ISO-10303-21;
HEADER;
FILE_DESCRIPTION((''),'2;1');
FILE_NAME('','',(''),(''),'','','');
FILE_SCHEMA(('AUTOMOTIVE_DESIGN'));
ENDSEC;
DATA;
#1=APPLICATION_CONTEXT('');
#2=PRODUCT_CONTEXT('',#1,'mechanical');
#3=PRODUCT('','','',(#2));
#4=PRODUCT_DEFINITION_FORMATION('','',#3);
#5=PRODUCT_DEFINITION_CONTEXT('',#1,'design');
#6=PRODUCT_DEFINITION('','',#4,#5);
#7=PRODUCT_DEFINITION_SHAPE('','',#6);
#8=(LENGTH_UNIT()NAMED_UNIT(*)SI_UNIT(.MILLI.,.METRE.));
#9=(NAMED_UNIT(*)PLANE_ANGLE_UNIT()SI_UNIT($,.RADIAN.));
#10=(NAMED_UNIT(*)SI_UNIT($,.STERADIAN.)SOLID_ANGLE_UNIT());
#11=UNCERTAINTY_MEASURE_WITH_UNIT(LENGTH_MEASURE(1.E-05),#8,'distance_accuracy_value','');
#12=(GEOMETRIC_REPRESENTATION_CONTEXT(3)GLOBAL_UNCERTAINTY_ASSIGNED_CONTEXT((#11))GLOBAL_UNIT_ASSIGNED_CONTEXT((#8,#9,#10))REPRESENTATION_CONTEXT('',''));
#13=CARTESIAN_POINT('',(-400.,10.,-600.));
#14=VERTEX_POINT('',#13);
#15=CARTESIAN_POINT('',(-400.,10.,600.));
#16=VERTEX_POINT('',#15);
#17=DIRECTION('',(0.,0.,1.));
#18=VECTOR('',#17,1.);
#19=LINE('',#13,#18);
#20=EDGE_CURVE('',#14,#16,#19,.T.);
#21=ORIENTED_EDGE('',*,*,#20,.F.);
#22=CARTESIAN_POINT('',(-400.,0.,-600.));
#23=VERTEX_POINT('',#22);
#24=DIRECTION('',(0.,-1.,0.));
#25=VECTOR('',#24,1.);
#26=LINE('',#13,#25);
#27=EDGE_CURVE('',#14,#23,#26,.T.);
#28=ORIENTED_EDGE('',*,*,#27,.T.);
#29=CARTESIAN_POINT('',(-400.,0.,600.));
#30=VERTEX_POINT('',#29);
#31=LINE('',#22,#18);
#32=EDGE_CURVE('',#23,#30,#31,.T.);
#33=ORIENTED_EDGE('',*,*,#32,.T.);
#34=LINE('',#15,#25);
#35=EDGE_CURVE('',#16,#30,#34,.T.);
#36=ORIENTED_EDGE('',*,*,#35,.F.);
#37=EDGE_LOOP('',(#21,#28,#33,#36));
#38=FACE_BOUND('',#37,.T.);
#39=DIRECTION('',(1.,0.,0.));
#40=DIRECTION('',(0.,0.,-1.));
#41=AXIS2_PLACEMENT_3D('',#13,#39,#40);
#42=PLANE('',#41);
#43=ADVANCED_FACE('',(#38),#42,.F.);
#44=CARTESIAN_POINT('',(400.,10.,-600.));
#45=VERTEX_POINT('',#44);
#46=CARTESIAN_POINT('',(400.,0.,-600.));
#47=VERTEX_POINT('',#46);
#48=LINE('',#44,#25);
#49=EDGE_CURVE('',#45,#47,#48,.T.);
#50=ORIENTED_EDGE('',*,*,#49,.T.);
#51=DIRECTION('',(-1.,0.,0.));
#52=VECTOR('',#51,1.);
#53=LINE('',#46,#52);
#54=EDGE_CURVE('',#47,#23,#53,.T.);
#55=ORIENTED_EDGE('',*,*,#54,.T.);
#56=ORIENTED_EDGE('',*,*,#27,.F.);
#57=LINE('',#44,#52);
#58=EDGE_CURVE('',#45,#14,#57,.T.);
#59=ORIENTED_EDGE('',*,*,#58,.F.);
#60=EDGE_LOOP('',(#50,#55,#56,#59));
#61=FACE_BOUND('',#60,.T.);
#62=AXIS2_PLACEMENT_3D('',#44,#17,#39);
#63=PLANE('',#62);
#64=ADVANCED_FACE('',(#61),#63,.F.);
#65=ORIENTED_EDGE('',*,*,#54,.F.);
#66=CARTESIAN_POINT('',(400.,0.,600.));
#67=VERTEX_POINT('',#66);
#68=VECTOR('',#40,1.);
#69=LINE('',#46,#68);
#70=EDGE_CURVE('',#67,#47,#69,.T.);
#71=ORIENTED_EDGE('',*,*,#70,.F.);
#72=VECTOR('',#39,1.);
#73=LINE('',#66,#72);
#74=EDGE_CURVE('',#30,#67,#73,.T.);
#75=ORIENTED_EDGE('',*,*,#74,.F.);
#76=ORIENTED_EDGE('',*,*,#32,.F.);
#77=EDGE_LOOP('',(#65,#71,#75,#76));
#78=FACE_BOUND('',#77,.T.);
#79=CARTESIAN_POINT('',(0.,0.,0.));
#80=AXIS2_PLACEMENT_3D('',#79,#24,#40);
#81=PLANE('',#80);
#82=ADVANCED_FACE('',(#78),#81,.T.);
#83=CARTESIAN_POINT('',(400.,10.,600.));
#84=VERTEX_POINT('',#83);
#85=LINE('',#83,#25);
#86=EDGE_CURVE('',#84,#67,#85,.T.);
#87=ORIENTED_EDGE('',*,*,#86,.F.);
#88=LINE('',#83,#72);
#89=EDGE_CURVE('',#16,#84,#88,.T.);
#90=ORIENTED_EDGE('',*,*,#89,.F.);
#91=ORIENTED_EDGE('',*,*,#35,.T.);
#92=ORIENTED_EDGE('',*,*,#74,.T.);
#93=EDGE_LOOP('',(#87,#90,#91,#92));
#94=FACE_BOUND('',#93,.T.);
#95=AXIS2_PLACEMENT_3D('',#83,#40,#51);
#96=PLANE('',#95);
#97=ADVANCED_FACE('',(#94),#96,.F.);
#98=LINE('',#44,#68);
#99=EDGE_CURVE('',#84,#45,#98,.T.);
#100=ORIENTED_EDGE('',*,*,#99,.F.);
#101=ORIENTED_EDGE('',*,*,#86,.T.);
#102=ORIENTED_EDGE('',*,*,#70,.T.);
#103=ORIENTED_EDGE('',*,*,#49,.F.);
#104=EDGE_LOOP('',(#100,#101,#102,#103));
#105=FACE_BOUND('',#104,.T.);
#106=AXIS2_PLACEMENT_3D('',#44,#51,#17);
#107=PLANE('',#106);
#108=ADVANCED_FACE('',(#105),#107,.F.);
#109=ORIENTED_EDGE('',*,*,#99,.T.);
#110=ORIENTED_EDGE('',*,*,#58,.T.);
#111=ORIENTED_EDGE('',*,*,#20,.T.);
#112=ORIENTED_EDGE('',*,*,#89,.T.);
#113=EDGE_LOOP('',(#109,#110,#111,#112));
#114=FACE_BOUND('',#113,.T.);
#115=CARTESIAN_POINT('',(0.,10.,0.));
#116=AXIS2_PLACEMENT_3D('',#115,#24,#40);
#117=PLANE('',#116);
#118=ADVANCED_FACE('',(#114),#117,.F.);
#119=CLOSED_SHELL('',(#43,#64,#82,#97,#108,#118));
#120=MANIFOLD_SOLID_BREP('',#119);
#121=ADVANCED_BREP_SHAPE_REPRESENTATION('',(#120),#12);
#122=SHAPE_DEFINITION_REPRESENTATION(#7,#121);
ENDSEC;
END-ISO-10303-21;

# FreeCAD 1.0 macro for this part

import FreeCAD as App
import Part
import Sketcher


def add_polygon(sketch, points):
    """Adds a closed chain of lines whose ends are joined by coincident constraints."""
    first, n = sketch.GeometryCount, len(points)
    for a, b in zip(points, points[1:] + points[:1]):
        sketch.addGeometry(Part.LineSegment(App.Vector(*a, 0), App.Vector(*b, 0)), False)
    for i in range(n):
        sketch.addConstraint(Sketcher.Constraint("Coincident", first + i, 2, first + (i + 1) % n, 1))

doc = App.newDocument("Part")
params = doc.addObject("Spreadsheet::Sheet", "Params")
for row, (alias, value) in enumerate([
    ("sketch1_width", "800 mm"),
    ("sketch1_height", "1200 mm"),
    ("pad1_length", "10 mm"),
], start=1):
    params.set(f"A{row}", alias)
    params.set(f"B{row}", "=" + value)
    params.setAlias(f"B{row}", alias)

body = doc.addObject("PartDesign::Body", "Body")

# Sketch on XZ plane
sketch1 = body.newObject("Sketcher::SketchObject", "Sketch")
sketch1.AttachmentSupport = (doc.getObject("XZ_Plane"), [""])
sketch1.MapMode = "FlatFace"
add_polygon(sketch1, [(-400, -600), (-400, 600), (400, 600), (400, -600)])  # lines 0-3
sketch1.addConstraint(Sketcher.Constraint("Vertical", 0))
sketch1.addConstraint(Sketcher.Constraint("Horizontal", 1))
sketch1.addConstraint(Sketcher.Constraint("Vertical", 2))
sketch1.addConstraint(Sketcher.Constraint("Horizontal", 3))
sketch1.addConstraint(Sketcher.Constraint("Symmetric", 0, 2, 2, 2, -1, 1))
sketch1.addConstraint(Sketcher.Constraint("DistanceX", 1, 1, 1, 2, 800.0))
sketch1.addConstraint(Sketcher.Constraint("DistanceY", 0, 1, 0, 2, 1200.0))
sketch1.setExpression("Constraints[9]", "Params.sketch1_width")
sketch1.setExpression("Constraints[10]", "Params.sketch1_height")
pad1 = body.newObject("PartDesign::Pad", "Pad")
pad1.Profile = sketch1
pad1.setExpression("Length", "Params.pad1_length")
pad1.Reversed = True

doc.recompute()
